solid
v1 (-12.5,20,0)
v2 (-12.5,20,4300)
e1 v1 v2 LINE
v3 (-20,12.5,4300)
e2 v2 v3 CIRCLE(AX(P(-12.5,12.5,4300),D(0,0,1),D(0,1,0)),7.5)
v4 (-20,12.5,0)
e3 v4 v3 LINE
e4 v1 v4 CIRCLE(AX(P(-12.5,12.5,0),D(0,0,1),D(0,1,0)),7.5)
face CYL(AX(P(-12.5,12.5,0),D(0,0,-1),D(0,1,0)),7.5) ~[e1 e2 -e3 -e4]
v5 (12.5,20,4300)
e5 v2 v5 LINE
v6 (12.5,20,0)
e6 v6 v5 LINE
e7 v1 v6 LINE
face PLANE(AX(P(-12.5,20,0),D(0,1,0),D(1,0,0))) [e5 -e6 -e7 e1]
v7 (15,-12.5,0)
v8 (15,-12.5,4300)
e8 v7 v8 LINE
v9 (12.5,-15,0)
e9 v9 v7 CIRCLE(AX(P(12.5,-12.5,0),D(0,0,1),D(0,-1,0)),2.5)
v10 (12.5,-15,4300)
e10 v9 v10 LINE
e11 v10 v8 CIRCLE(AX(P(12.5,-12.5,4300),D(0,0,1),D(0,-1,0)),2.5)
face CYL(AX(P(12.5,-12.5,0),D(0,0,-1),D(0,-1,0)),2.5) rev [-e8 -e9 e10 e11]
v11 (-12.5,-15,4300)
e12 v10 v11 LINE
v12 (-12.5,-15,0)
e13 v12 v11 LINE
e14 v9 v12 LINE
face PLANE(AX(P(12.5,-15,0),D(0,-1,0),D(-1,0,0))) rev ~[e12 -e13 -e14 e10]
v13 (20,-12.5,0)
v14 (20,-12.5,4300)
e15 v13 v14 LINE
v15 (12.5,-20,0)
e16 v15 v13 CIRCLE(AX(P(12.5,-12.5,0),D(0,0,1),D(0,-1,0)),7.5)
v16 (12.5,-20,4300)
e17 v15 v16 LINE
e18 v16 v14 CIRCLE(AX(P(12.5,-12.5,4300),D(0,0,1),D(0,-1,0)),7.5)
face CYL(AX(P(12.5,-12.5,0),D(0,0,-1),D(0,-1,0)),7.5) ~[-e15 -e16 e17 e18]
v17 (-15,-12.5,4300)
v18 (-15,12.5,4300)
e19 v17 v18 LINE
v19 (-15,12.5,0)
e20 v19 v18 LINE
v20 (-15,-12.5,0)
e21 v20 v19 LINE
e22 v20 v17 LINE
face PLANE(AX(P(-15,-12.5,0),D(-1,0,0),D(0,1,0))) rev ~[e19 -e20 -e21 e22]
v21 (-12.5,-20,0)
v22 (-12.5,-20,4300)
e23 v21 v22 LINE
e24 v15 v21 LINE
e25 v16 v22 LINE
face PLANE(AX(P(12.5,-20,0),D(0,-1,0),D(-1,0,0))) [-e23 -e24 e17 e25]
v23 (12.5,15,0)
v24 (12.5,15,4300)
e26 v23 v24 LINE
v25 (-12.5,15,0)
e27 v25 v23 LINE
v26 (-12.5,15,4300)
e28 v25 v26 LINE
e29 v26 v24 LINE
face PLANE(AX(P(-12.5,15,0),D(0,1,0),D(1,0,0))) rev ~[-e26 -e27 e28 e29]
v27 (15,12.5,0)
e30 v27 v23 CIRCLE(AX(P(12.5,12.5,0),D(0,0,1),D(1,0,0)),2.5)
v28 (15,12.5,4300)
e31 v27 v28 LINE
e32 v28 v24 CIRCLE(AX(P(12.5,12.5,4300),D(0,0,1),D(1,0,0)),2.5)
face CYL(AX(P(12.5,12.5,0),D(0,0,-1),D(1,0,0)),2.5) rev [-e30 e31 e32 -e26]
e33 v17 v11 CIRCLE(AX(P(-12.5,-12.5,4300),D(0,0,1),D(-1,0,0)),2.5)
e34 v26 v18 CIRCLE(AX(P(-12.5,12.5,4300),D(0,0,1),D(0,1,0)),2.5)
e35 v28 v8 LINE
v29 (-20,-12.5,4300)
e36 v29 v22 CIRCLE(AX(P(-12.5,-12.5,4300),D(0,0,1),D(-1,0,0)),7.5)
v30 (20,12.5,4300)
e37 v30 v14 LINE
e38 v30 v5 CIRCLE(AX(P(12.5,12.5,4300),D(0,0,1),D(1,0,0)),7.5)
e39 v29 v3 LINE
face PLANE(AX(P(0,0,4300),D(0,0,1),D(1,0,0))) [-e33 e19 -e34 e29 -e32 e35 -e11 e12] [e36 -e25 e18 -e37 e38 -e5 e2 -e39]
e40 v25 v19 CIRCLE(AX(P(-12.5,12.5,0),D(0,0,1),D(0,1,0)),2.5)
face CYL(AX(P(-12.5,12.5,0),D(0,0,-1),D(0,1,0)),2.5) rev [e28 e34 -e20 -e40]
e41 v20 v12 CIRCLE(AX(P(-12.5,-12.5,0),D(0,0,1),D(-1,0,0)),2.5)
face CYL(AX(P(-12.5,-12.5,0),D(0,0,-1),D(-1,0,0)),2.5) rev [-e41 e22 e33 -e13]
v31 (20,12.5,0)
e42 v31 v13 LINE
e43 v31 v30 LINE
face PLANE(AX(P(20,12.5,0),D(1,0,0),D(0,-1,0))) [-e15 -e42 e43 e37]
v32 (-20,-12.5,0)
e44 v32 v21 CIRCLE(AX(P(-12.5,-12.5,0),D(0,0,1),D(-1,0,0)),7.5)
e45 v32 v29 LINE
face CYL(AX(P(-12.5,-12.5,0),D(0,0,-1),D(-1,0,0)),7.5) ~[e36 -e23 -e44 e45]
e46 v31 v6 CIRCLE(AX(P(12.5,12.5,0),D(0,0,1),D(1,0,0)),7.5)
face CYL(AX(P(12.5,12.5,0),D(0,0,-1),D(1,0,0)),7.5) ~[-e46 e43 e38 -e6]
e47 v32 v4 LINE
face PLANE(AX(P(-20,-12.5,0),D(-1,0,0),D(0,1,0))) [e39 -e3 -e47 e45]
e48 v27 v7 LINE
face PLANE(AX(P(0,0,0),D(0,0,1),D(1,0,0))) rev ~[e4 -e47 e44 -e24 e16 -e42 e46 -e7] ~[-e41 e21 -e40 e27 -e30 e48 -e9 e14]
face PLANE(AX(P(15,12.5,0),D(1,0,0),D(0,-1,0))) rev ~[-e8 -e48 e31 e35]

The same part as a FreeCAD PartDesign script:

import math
import FreeCAD as App
import Part
import Sketcher
Q = App.Units.Quantity

doc = App.newDocument("Part")
params = doc.addObject("Spreadsheet::Sheet", "Params")
for row, (alias, value) in enumerate([
    ("sketch1_radius", "7.5 mm"),
    ("sketch1_radius2", "2.5 mm"),
    ("pad1_length", "4300 mm"),
], start=1):
    params.set(f"A{row}", alias)
    params.set(f"B{row}", "=" + value)
    params.setAlias(f"B{row}", alias)

body = doc.addObject("PartDesign::Body", "Body")

# Sketch on XY plane
sketch1 = body.newObject("Sketcher::SketchObject", "Sketch")
sketch1.AttachmentSupport = (doc.getObject("XY_Plane"), [""])
sketch1.MapMode = "FlatFace"
sketch1.addGeometry([
    Part.LineSegment(App.Vector(-20, 12.5, 0), App.Vector(-20, -12.5, 0)),  # 0
    Part.ArcOfCircle(Part.Circle(App.Vector(-12.5, -12.5, 0), App.Vector(0, 0, 1), 7.5), math.radians(180), math.radians(270)),  # 1
    Part.LineSegment(App.Vector(-12.5, -20, 0), App.Vector(12.5, -20, 0)),  # 2
    Part.ArcOfCircle(Part.Circle(App.Vector(12.5, -12.5, 0), App.Vector(0, 0, 1), 7.5), math.radians(-90), math.radians(0)),  # 3
    Part.LineSegment(App.Vector(20, -12.5, 0), App.Vector(20, 12.5, 0)),  # 4
    Part.ArcOfCircle(Part.Circle(App.Vector(12.5, 12.5, 0), App.Vector(0, 0, 1), 7.5), math.radians(0), math.radians(90)),  # 5
    Part.LineSegment(App.Vector(12.5, 20, 0), App.Vector(-12.5, 20, 0)),  # 6
    Part.ArcOfCircle(Part.Circle(App.Vector(-12.5, 12.5, 0), App.Vector(0, 0, 1), 7.5), math.radians(90), math.radians(180)),  # 7
    Part.ArcOfCircle(Part.Circle(App.Vector(-12.5, 12.5, 0), App.Vector(0, 0, 1), 2.5), math.radians(90), math.radians(180)),  # 8
    Part.LineSegment(App.Vector(-12.5, 15, 0), App.Vector(12.5, 15, 0)),  # 9
    Part.ArcOfCircle(Part.Circle(App.Vector(12.5, 12.5, 0), App.Vector(0, 0, 1), 2.5), math.radians(0), math.radians(90)),  # 10
    Part.LineSegment(App.Vector(15, 12.5, 0), App.Vector(15, -12.5, 0)),  # 11
    Part.ArcOfCircle(Part.Circle(App.Vector(12.5, -12.5, 0), App.Vector(0, 0, 1), 2.5), math.radians(-90), math.radians(0)),  # 12
    Part.LineSegment(App.Vector(12.5, -15, 0), App.Vector(-12.5, -15, 0)),  # 13
    Part.ArcOfCircle(Part.Circle(App.Vector(-12.5, -12.5, 0), App.Vector(0, 0, 1), 2.5), math.radians(180), math.radians(270)),  # 14
    Part.LineSegment(App.Vector(-15, -12.5, 0), App.Vector(-15, 12.5, 0)),  # 15
], False)
sketch1.addConstraint([
    Sketcher.Constraint("Tangent", 0, 2, 1, 1),
    Sketcher.Constraint("Tangent", 1, 2, 2, 1),
    Sketcher.Constraint("Tangent", 2, 2, 3, 1),
    Sketcher.Constraint("Tangent", 3, 2, 4, 1),
    Sketcher.Constraint("Tangent", 4, 2, 5, 1),
    Sketcher.Constraint("Tangent", 5, 2, 6, 1),
    Sketcher.Constraint("Tangent", 6, 2, 7, 1),
    Sketcher.Constraint("Tangent", 7, 2, 0, 1),
    Sketcher.Constraint("Tangent", 8, 1, 9, 1),
    Sketcher.Constraint("Tangent", 9, 2, 10, 2),
    Sketcher.Constraint("Tangent", 10, 1, 11, 1),
    Sketcher.Constraint("Tangent", 11, 2, 12, 2),
    Sketcher.Constraint("Tangent", 12, 1, 13, 1),
    Sketcher.Constraint("Tangent", 13, 2, 14, 2),
    Sketcher.Constraint("Tangent", 14, 1, 15, 1),
    Sketcher.Constraint("Tangent", 15, 2, 8, 2),
    Sketcher.Constraint("Vertical", 0),
    Sketcher.Constraint("Horizontal", 2),
    Sketcher.Constraint("Vertical", 4),
    Sketcher.Constraint("Horizontal", 6),
    Sketcher.Constraint("Horizontal", 9),
    Sketcher.Constraint("Vertical", 11),
    Sketcher.Constraint("Horizontal", 13),
    Sketcher.Constraint("Vertical", 15),
    Sketcher.Constraint("Coincident", 8, 3, 7, 3),
    Sketcher.Constraint("Coincident", 10, 3, 5, 3),
    Sketcher.Constraint("Coincident", 12, 3, 3, 3),
    Sketcher.Constraint("Equal", 1, 3),
    Sketcher.Constraint("Equal", 3, 5),
    Sketcher.Constraint("Equal", 5, 7),
    Sketcher.Constraint("Equal", 12, 14),
    Sketcher.Constraint("Symmetric", 1, 3, 5, 3, -1, 1),
    Sketcher.Constraint("Equal", 13, 0),
    Sketcher.Constraint("Radius", 1, Q("7.5 mm")),
    Sketcher.Constraint("Radius", 8, Q("2.5 mm")),
    Sketcher.Constraint("DistanceX", 0, 2, -1, 1, Q("20 mm")),
])
sketch1.setExpression("Constraints[33]", "Params.sketch1_radius")
sketch1.setExpression("Constraints[34]", "Params.sketch1_radius2")
pad1 = body.newObject("PartDesign::Pad", "Pad")
pad1.Profile = sketch1
pad1.setExpression("Length", "Params.pad1_length")

doc.recompute()
